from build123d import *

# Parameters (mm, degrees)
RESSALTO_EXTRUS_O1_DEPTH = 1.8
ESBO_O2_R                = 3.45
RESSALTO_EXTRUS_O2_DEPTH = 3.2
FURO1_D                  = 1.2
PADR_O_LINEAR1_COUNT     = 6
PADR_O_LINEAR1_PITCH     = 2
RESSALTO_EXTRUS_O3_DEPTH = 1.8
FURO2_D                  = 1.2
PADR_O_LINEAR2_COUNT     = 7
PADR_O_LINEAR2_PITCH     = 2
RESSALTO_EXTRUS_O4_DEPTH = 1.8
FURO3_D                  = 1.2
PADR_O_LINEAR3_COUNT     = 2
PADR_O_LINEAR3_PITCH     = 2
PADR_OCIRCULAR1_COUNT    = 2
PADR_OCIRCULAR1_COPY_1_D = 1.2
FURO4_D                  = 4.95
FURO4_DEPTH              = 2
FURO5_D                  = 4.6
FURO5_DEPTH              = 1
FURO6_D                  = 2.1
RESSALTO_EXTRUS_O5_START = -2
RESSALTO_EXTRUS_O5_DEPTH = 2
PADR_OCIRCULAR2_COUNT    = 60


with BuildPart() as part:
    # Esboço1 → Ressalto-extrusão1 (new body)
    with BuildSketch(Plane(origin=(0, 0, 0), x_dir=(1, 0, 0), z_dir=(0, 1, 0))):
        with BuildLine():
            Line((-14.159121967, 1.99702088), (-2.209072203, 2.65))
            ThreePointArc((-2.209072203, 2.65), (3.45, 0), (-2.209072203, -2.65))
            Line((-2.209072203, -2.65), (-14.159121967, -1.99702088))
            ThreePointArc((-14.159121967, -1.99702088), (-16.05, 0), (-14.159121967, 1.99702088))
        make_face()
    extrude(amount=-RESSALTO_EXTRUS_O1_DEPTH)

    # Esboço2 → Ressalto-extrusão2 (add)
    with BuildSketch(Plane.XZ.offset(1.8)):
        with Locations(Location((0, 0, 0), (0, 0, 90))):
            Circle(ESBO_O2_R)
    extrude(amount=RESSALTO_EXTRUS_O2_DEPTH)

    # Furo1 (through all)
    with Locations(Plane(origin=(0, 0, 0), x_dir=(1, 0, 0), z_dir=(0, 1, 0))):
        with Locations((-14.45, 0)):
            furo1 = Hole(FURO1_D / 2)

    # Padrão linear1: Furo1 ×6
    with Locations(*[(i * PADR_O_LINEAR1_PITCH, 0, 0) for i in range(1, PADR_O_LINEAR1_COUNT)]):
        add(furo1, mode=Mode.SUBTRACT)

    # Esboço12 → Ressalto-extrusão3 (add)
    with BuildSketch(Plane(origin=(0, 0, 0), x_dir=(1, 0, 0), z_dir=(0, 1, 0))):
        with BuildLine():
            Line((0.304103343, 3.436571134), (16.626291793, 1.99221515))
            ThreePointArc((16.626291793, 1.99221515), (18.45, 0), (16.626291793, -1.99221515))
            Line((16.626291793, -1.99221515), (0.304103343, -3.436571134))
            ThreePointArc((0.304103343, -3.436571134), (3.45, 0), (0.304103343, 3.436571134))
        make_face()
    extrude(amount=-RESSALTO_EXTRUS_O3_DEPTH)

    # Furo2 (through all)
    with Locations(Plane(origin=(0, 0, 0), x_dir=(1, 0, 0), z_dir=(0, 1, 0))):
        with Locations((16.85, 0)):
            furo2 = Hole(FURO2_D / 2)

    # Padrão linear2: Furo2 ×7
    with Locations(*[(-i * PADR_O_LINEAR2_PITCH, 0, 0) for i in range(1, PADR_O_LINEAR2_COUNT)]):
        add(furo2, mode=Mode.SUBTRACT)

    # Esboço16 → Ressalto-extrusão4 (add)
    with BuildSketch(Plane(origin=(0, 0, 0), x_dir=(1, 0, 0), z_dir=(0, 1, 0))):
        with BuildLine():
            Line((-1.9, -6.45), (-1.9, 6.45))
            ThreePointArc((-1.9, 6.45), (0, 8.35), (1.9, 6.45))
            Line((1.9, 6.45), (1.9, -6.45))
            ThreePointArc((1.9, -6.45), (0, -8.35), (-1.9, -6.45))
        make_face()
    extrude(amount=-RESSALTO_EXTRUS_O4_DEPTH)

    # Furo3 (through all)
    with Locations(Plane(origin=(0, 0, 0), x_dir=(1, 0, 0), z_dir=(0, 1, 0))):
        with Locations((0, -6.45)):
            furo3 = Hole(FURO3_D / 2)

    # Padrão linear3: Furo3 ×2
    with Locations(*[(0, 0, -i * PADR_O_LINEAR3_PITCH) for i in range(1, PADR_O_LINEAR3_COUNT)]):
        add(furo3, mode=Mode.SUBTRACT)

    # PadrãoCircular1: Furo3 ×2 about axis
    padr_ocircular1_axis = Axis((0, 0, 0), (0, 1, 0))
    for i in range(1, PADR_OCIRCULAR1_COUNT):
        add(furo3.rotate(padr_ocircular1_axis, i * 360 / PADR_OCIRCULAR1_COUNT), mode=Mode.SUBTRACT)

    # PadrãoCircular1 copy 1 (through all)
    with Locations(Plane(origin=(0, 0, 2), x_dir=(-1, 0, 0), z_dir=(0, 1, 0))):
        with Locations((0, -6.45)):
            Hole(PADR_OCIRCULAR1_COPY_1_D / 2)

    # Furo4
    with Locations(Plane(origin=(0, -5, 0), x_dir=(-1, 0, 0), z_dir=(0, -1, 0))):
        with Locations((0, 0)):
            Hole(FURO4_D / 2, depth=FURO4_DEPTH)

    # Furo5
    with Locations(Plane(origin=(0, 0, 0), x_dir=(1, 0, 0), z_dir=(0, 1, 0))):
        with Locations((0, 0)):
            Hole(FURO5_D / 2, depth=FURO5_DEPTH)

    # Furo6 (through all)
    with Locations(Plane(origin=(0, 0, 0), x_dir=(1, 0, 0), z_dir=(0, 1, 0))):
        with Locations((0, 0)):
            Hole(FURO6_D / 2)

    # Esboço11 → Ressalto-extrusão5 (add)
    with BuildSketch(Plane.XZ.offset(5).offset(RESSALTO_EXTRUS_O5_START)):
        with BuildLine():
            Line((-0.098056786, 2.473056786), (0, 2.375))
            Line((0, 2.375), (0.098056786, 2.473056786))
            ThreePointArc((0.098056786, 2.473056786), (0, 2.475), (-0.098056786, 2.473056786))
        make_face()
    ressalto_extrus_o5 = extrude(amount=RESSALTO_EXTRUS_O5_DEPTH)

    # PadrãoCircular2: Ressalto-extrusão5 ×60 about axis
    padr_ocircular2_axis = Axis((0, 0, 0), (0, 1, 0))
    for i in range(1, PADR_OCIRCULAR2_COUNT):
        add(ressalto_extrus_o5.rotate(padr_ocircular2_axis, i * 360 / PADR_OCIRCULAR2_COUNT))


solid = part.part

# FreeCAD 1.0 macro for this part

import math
import FreeCAD as App
import Part
import Sketcher
from FreeCAD import Vector
Q = App.Units.Quantity

doc = App.newDocument("Part")
body = doc.addObject("PartDesign::Body", "Body")

# Sketch on XZ plane
sketch1 = body.newObject("Sketcher::SketchObject", "Sketch")
sketch1.AttachmentSupport = (doc.getObject("XZ_Plane"), [""])
sketch1.MapMode = "FlatFace"
sketch1.addGeometry(Part.LineSegment(Vector(-2.209072, -2.65, 0), Vector(-14.159122, -1.997021, 0)), False)
sketch1.addGeometry(Part.ArcOfCircle(Part.Circle(Vector(-14.05, 0, 0), Vector(0, 0, 1), 2), math.radians(93.127667), math.radians(266.872333)), False)
sketch1.addGeometry(Part.LineSegment(Vector(-14.159122, 1.997021, 0), Vector(-2.209072, 2.65, 0)), False)
sketch1.addGeometry(Part.ArcOfCircle(Part.Circle(Vector(0, 0, 0), Vector(0, 0, 1), 3.45), math.radians(-129.814998), math.radians(129.814998)), False)
sketch1.addConstraint(Sketcher.Constraint("Tangent", 0, 2, 1, 2))
sketch1.addConstraint(Sketcher.Constraint("Tangent", 1, 1, 2, 1))
sketch1.addConstraint(Sketcher.Constraint("Coincident", 2, 2, 3, 2))
sketch1.addConstraint(Sketcher.Constraint("Coincident", 3, 1, 0, 1))
sketch1.addConstraint(Sketcher.Constraint("Coincident", 3, 3, -1, 1))
sketch1.addConstraint(Sketcher.Constraint("Symmetric", 0, 2, 1, 1, -1))
sketch1.addConstraint(Sketcher.Constraint("Radius", 1, Q("2 mm")))
sketch1.addConstraint(Sketcher.Constraint("Radius", 3, Q("3.45 mm")))
sketch1.addConstraint(Sketcher.Constraint("DistanceY", 3, 1, 2, 2, Q("5.3 mm")))
sketch1.addConstraint(Sketcher.Constraint("DistanceX", 1, 3, -1, 1, Q("14.05 mm")))
pad1 = body.newObject("PartDesign::Pad", "Pad")
pad1.Profile = sketch1
pad1.Length = 1.8

# Sketch on XZ plane
sketch2 = body.newObject("Sketcher::SketchObject", "Sketch001")
sketch2.AttachmentSupport = (doc.getObject("XZ_Plane"), [""])
sketch2.MapMode = "FlatFace"
sketch2.AttachmentOffset = App.Placement(Vector(0, 0, 1.8), App.Rotation())
sketch2.addGeometry(Part.Circle(Vector(0, 0, 0), Vector(0, 0, 1), 3.45), False)
sketch2.addConstraint(Sketcher.Constraint("Coincident", 0, 3, -1, 1))
sketch2.addConstraint(Sketcher.Constraint("Diameter", 0, Q("6.9 mm")))
pad2 = body.newObject("PartDesign::Pad", "Pad001")
pad2.Profile = sketch2
pad2.Length = 3.2

# Sketch on XZ plane
sketch3 = body.newObject("Sketcher::SketchObject", "Sketch002")
sketch3.AttachmentSupport = (doc.getObject("XZ_Plane"), [""])
sketch3.MapMode = "FlatFace"
sketch3.addGeometry(Part.Circle(Vector(-14.45, 0, 0), Vector(0, 0, 1), 0.6), False)
sketch3.addConstraint(Sketcher.Constraint("PointOnObject", 0, 3, -1))
sketch3.addConstraint(Sketcher.Constraint("Diameter", 0, Q("1.2 mm")))
sketch3.addConstraint(Sketcher.Constraint("DistanceX", 0, 3, -1, 1, Q("14.45 mm")))
doc.recompute()
hole = body.newObject("PartDesign::Hole", "Hole")
hole.Profile = sketch3
hole.ThreadType = "None"
hole.Diameter = 1.2
hole.DepthType = "ThroughAll"
hole.Reversed = True
doc.recompute()

linearpattern = body.newObject("PartDesign::LinearPattern", "LinearPattern")
linearpattern.Originals = [hole]
linearpattern.Direction = (doc.getObject("X_Axis"), [""])
linearpattern.Mode = "offset"
linearpattern.Offset = 2
linearpattern.Occurrences = 6
body.Tip = linearpattern

# Sketch on XZ plane
sketch4 = body.newObject("Sketcher::SketchObject", "Sketch003")
sketch4.AttachmentSupport = (doc.getObject("XZ_Plane"), [""])
sketch4.MapMode = "FlatFace"
sketch4.addGeometry(Part.LineSegment(Vector(16.626292, -1.992215, 0), Vector(0.304103, -3.436571, 0)), False)
sketch4.addGeometry(Part.ArcOfCircle(Part.Circle(Vector(0, 0, 0), Vector(0, 0, 1), 3.45), math.radians(-84.943049), math.radians(84.943049)), False)
sketch4.addGeometry(Part.LineSegment(Vector(0.304103, 3.436571, 0), Vector(16.626292, 1.992215, 0)), False)
sketch4.addGeometry(Part.ArcOfCircle(Part.Circle(Vector(16.45, 0, 0), Vector(0, 0, 1), 2), math.radians(-84.943049), math.radians(84.943049)), False)
sketch4.addConstraint(Sketcher.Constraint("Tangent", 0, 2, 1, 1))
sketch4.addConstraint(Sketcher.Constraint("Tangent", 1, 2, 2, 1))
sketch4.addConstraint(Sketcher.Constraint("Tangent", 2, 2, 3, 2))
sketch4.addConstraint(Sketcher.Constraint("Tangent", 3, 1, 0, 1))
sketch4.addConstraint(Sketcher.Constraint("Coincident", 1, 3, -1, 1))
sketch4.addConstraint(Sketcher.Constraint("PointOnObject", 3, 3, -1))
sketch4.addConstraint(Sketcher.Constraint("Radius", 3, Q("2 mm")))
sketch4.addConstraint(Sketcher.Constraint("Radius", 1, Q("3.45 mm")))
sketch4.addConstraint(Sketcher.Constraint("DistanceX", -1, 1, 3, 3, Q("16.45 mm")))
pad3 = body.newObject("PartDesign::Pad", "Pad002")
pad3.Profile = sketch4
pad3.Length = 1.8

# Sketch on XZ plane
sketch5 = body.newObject("Sketcher::SketchObject", "Sketch004")
sketch5.AttachmentSupport = (doc.getObject("XZ_Plane"), [""])
sketch5.MapMode = "FlatFace"
sketch5.addGeometry(Part.Circle(Vector(16.85, 0, 0), Vector(0, 0, 1), 0.6), False)
sketch5.addConstraint(Sketcher.Constraint("PointOnObject", 0, 3, -1))
sketch5.addConstraint(Sketcher.Constraint("Diameter", 0, Q("1.2 mm")))
sketch5.addConstraint(Sketcher.Constraint("DistanceX", -1, 1, 0, 3, Q("16.85 mm")))
doc.recompute()
hole2 = body.newObject("PartDesign::Hole", "Hole001")
hole2.Profile = sketch5
hole2.ThreadType = "None"
hole2.Diameter = 1.2
hole2.DepthType = "ThroughAll"
hole2.Reversed = True
doc.recompute()

linearpattern2 = body.newObject("PartDesign::LinearPattern", "LinearPattern001")
linearpattern2.Originals = [hole2]
linearpattern2.Direction = (doc.getObject("X_Axis"), [""])
linearpattern2.Mode = "offset"
linearpattern2.Offset = 2
linearpattern2.Occurrences = 7
linearpattern2.Reversed = True
body.Tip = linearpattern2

# Sketch on XZ plane
sketch6 = body.newObject("Sketcher::SketchObject", "Sketch005")
sketch6.AttachmentSupport = (doc.getObject("XZ_Plane"), [""])
sketch6.MapMode = "FlatFace"
sketch6.addGeometry(Part.LineSegment(Vector(-1.9, -6.45, 0), Vector(-1.9, 6.45, 0)), False)
sketch6.addGeometry(Part.ArcOfCircle(Part.Circle(Vector(0, 6.45, 0), Vector(0, 0, 1), 1.9), math.radians(0), math.radians(180)), False)
sketch6.addGeometry(Part.LineSegment(Vector(1.9, 6.45, 0), Vector(1.9, -6.45, 0)), False)
sketch6.addGeometry(Part.ArcOfCircle(Part.Circle(Vector(0, -6.45, 0), Vector(0, 0, 1), 1.9), math.radians(180), math.radians(360)), False)
sketch6.addConstraint(Sketcher.Constraint("Tangent", 0, 2, 1, 2))
sketch6.addConstraint(Sketcher.Constraint("Tangent", 1, 1, 2, 1))
sketch6.addConstraint(Sketcher.Constraint("Tangent", 2, 2, 3, 2))
sketch6.addConstraint(Sketcher.Constraint("Tangent", 3, 1, 0, 1))
sketch6.addConstraint(Sketcher.Constraint("Vertical", 0))
sketch6.addConstraint(Sketcher.Constraint("Vertical", 2))
sketch6.addConstraint(Sketcher.Constraint("Symmetric", 1, 3, 3, 3, -1, 1))
sketch6.addConstraint(Sketcher.Constraint("Radius", 1, Q("1.9 mm")))
sketch6.addConstraint(Sketcher.Constraint("DistanceY", 0, 1, 0, 2, Q("12.9 mm")))
pad4 = body.newObject("PartDesign::Pad", "Pad003")
pad4.Profile = sketch6
pad4.Length = 1.8

# Sketch on XZ plane
sketch7 = body.newObject("Sketcher::SketchObject", "Sketch006")
sketch7.AttachmentSupport = (doc.getObject("XZ_Plane"), [""])
sketch7.MapMode = "FlatFace"
sketch7.addGeometry(Part.Circle(Vector(0, 6.45, 0), Vector(0, 0, 1), 0.6), False)
sketch7.addConstraint(Sketcher.Constraint("PointOnObject", 0, 3, -2))
sketch7.addConstraint(Sketcher.Constraint("Diameter", 0, Q("1.2 mm")))
sketch7.addConstraint(Sketcher.Constraint("DistanceY", -1, 1, 0, 3, Q("6.45 mm")))
doc.recompute()
hole3 = body.newObject("PartDesign::Hole", "Hole002")
hole3.Profile = sketch7
hole3.ThreadType = "None"
hole3.Diameter = 1.2
hole3.DepthType = "ThroughAll"
hole3.Reversed = True
doc.recompute()

linearpattern3 = body.newObject("PartDesign::LinearPattern", "LinearPattern002")
linearpattern3.Originals = [hole3]
linearpattern3.Direction = (doc.getObject("Z_Axis"), [""])
linearpattern3.Mode = "offset"
linearpattern3.Offset = 2
linearpattern3.Occurrences = 2
linearpattern3.Reversed = True
body.Tip = linearpattern3
doc.recompute()

polarpattern = body.newObject("PartDesign::PolarPattern", "PolarPattern")
polarpattern.Originals = [hole3]
polarpattern.Axis = (doc.getObject("Y_Axis"), [""])
polarpattern.Angle = 360
polarpattern.Occurrences = 2
body.Tip = polarpattern

# Sketch on XZ plane
sketch8 = body.newObject("Sketcher::SketchObject", "Sketch007")
sketch8.AttachmentSupport = (doc.getObject("XZ_Plane"), [""])
sketch8.MapMode = "FlatFace"
sketch8.addGeometry(Part.Circle(Vector(0, -4.45, 0), Vector(0, 0, 1), 0.6), False)
sketch8.addConstraint(Sketcher.Constraint("PointOnObject", 0, 3, -2))
sketch8.addConstraint(Sketcher.Constraint("Diameter", 0, Q("1.2 mm")))
sketch8.addConstraint(Sketcher.Constraint("DistanceY", 0, 3, -1, 1, Q("4.45 mm")))
doc.recompute()
hole4 = body.newObject("PartDesign::Hole", "Hole003")
hole4.Profile = sketch8
hole4.ThreadType = "None"
hole4.Diameter = 1.2
hole4.DepthType = "ThroughAll"
hole4.Reversed = True

# Sketch on XZ plane
sketch9 = body.newObject("Sketcher::SketchObject", "Sketch008")
sketch9.AttachmentSupport = (doc.getObject("XZ_Plane"), [""])
sketch9.MapMode = "FlatFace"
sketch9.AttachmentOffset = App.Placement(Vector(0, 0, 5), App.Rotation())
sketch9.addGeometry(Part.Circle(Vector(0, 0, 0), Vector(0, 0, 1), 2.475), False)
sketch9.addConstraint(Sketcher.Constraint("Coincident", 0, 3, -1, 1))
sketch9.addConstraint(Sketcher.Constraint("Diameter", 0, Q("4.95 mm")))
doc.recompute()
hole5 = body.newObject("PartDesign::Hole", "Hole004")
hole5.Profile = sketch9
hole5.ThreadType = "None"
hole5.Diameter = 4.95
hole5.DepthType = "Dimension"
hole5.Depth = 2
hole5.DrillPoint = "Flat"

# Sketch on XZ plane
sketch10 = body.newObject("Sketcher::SketchObject", "Sketch009")
sketch10.AttachmentSupport = (doc.getObject("XZ_Plane"), [""])
sketch10.MapMode = "FlatFace"
sketch10.addGeometry(Part.Circle(Vector(0, 0, 0), Vector(0, 0, 1), 2.3), False)
sketch10.addConstraint(Sketcher.Constraint("Coincident", 0, 3, -1, 1))
sketch10.addConstraint(Sketcher.Constraint("Diameter", 0, Q("4.6 mm")))
doc.recompute()
hole6 = body.newObject("PartDesign::Hole", "Hole005")
hole6.Profile = sketch10
hole6.ThreadType = "None"
hole6.Diameter = 4.6
hole6.DepthType = "Dimension"
hole6.Depth = 1
hole6.DrillPoint = "Flat"
hole6.Reversed = True

# Sketch on XZ plane
sketch11 = body.newObject("Sketcher::SketchObject", "Sketch010")
sketch11.AttachmentSupport = (doc.getObject("XZ_Plane"), [""])
sketch11.MapMode = "FlatFace"
sketch11.addGeometry(Part.Circle(Vector(0, 0, 0), Vector(0, 0, 1), 1.05), False)
sketch11.addConstraint(Sketcher.Constraint("Coincident", 0, 3, -1, 1))
sketch11.addConstraint(Sketcher.Constraint("Diameter", 0, Q("2.1 mm")))
doc.recompute()
hole7 = body.newObject("PartDesign::Hole", "Hole006")
hole7.Profile = sketch11
hole7.ThreadType = "None"
hole7.Diameter = 2.1
hole7.DepthType = "ThroughAll"
hole7.Reversed = True

# Sketch on XZ plane
sketch12 = body.newObject("Sketcher::SketchObject", "Sketch011")
sketch12.AttachmentSupport = (doc.getObject("XZ_Plane"), [""])
sketch12.MapMode = "FlatFace"
sketch12.AttachmentOffset = App.Placement(Vector(0, 0, 3), App.Rotation())
sketch12.addGeometry(Part.LineSegment(Vector(-0.098057, 2.473057, 0), Vector(0, 2.375, 0)), False)
sketch12.addGeometry(Part.LineSegment(Vector(0, 2.375, 0), Vector(0.098057, 2.473057, 0)), False)
sketch12.addGeometry(Part.ArcOfCircle(Part.Circle(Vector(0, 0, 0), Vector(0, 0, 1), 2.475), math.radians(87.72941), math.radians(92.27059)), False)
sketch12.addConstraint(Sketcher.Constraint("Coincident", 0, 2, 1, 1))
sketch12.addConstraint(Sketcher.Constraint("Coincident", 1, 2, 2, 1))
sketch12.addConstraint(Sketcher.Constraint("Coincident", 2, 2, 0, 1))
sketch12.addConstraint(Sketcher.Constraint("Coincident", 2, 3, -1, 1))
sketch12.addConstraint(Sketcher.Constraint("PointOnObject", 0, 2, -2))
sketch12.addConstraint(Sketcher.Constraint("Perpendicular", 0, 1))
sketch12.addConstraint(Sketcher.Constraint("Horizontal", 1, 2, 2, 2))
sketch12.addConstraint(Sketcher.Constraint("Radius", 2, Q("2.475 mm")))
sketch12.addConstraint(Sketcher.Constraint("DistanceY", -1, 1, 0, 2, Q("2.375 mm")))
pad5 = body.newObject("PartDesign::Pad", "Pad004")
pad5.Profile = sketch12
pad5.Length = 2
doc.recompute()

polarpattern2 = body.newObject("PartDesign::PolarPattern", "PolarPattern001")
polarpattern2.Originals = [pad5]
polarpattern2.Axis = (doc.getObject("Y_Axis"), [""])
polarpattern2.Angle = 360
polarpattern2.Occurrences = 60
body.Tip = polarpattern2

doc.recompute()
